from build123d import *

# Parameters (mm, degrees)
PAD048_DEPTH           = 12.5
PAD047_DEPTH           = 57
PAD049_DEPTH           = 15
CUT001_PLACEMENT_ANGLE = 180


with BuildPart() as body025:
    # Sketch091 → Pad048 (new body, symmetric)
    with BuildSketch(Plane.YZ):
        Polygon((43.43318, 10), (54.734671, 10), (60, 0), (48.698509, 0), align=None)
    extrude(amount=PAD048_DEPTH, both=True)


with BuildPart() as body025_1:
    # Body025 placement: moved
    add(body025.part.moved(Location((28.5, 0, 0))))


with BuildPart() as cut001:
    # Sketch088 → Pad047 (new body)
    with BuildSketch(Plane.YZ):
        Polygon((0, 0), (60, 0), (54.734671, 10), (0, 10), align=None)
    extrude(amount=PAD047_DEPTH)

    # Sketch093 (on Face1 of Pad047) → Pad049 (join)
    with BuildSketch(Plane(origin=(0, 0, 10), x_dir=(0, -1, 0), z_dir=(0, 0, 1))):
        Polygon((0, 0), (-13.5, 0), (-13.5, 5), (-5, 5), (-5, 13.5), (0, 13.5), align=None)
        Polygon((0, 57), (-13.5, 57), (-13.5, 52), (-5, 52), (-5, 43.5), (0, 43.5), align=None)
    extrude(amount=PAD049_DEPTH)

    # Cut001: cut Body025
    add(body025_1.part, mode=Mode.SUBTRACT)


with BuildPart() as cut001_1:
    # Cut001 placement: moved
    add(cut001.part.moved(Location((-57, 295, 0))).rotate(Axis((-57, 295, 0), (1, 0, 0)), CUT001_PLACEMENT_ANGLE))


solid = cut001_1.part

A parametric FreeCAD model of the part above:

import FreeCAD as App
import Part
import Sketcher
Q = App.Units.Quantity

doc = App.newDocument("Part")
params = doc.addObject("Spreadsheet::Sheet", "Params")
for row, (alias, value) in enumerate([
    ("pad1_length", "25 mm"),
    ("sketch2_width", "60 mm"),
    ("sketch2_height", "10 mm"),
    ("pad2_length", "57 mm"),
    ("sketch3_width", "5 mm"),
    ("sketch3_width2", "13.5 mm"),
    ("pad3_length", "15 mm"),
], start=1):
    params.set(f"A{row}", alias)
    params.set(f"B{row}", "=" + value)
    params.setAlias(f"B{row}", alias)

body = doc.addObject("PartDesign::Body", "Body")

sketch1 = doc.addObject("Sketcher::SketchObject", "Sketch")
body.addObject(sketch1)
sketch1.AttachmentSupport = (doc.YZ_Plane, [""])
sketch1.MapMode = "FlatFace"
sketch1.addGeometry(Part.LineSegment(App.Vector(55, 10, 0), App.Vector(43, 10, 0)), False)
sketch1.addGeometry(Part.LineSegment(App.Vector(43, 10, 0), App.Vector(49, 0, 0)), False)
sketch1.addGeometry(Part.LineSegment(App.Vector(49, 0, 0), App.Vector(60, 0, 0)), False)
sketch1.addGeometry(Part.LineSegment(App.Vector(60, 0, 0), App.Vector(55, 10, 0)), False)
sketch1.addConstraint(Sketcher.Constraint("Coincident", 0, 2, 1, 1))
sketch1.addConstraint(Sketcher.Constraint("Coincident", 1, 2, 2, 1))
sketch1.addConstraint(Sketcher.Constraint("Coincident", 2, 2, 3, 1))
sketch1.addConstraint(Sketcher.Constraint("Coincident", 3, 2, 0, 1))
sketch1.addConstraint(Sketcher.Constraint("Horizontal", 0))
sketch1.addConstraint(Sketcher.Constraint("Horizontal", 2))
sketch1.addConstraint(Sketcher.Constraint("PointOnObject", 1, 2, -1))
sketch1.addConstraint(Sketcher.Constraint("Parallel", 1, 3))
sketch1.addConstraint(Sketcher.Constraint("DistanceY", -1, 1, 0, 2, Q("10 mm")))
sketch1.addConstraint(Sketcher.Constraint("DistanceX", -1, 1, 2, 2, Q("60 mm")))
sketch1.addConstraint(Sketcher.Constraint("DistanceX", 0, 2, 0, 1, Q("11.301491 mm")))
sketch1.addConstraint(Sketcher.Constraint("Distance", 1, Q("11.301491 mm")))
pad1 = doc.addObject("PartDesign::Pad", "Pad")
body.addObject(pad1)
pad1.Profile = sketch1
pad1.setExpression("Length", "Params.pad1_length")
pad1.Midplane = True
body2 = doc.addObject("PartDesign::Body", "Body001")
doc.recompute()

body.Placement = App.Placement(App.Vector(28.5, 0, 0), App.Rotation(App.Vector(0, 0, 1), 0))
boolean = doc.addObject("PartDesign::Boolean", "Boolean")
body2.addObject(boolean)
boolean.Type = "Fuse"
boolean.addObjects([body])
body3 = doc.addObject("PartDesign::Body", "Body002")

sketch2 = doc.addObject("Sketcher::SketchObject", "Sketch001")
body3.addObject(sketch2)
sketch2.AttachmentSupport = (doc.getObject("YZ_Plane002"), [""])
sketch2.MapMode = "FlatFace"
sketch2.addGeometry(Part.LineSegment(App.Vector(0, 0, 0), App.Vector(60, 0, 0)), False)
sketch2.addGeometry(Part.LineSegment(App.Vector(60, 0, 0), App.Vector(55, 10, 0)), False)
sketch2.addGeometry(Part.LineSegment(App.Vector(55, 10, 0), App.Vector(0, 10, 0)), False)
sketch2.addGeometry(Part.LineSegment(App.Vector(0, 10, 0), App.Vector(0, 0, 0)), False)
sketch2.addConstraint(Sketcher.Constraint("Coincident", 0, 2, 1, 1))
sketch2.addConstraint(Sketcher.Constraint("Coincident", 1, 2, 2, 1))
sketch2.addConstraint(Sketcher.Constraint("Coincident", 2, 2, 3, 1))
sketch2.addConstraint(Sketcher.Constraint("Coincident", 3, 2, 0, 1))
sketch2.addConstraint(Sketcher.Constraint("Horizontal", 0))
sketch2.addConstraint(Sketcher.Constraint("Horizontal", 2))
sketch2.addConstraint(Sketcher.Constraint("Vertical", 3))
sketch2.addConstraint(Sketcher.Constraint("Coincident", 3, 2, -1, 1))
sketch2.addConstraint(Sketcher.Constraint("DistanceX", 0, 1, 0, 2, Q("60 mm")))
sketch2.addConstraint(Sketcher.Constraint("DistanceY", 3, 2, 3, 1, Q("10 mm")))
sketch2.addConstraint(Sketcher.Constraint("DistanceX", 2, 2, 2, 1, Q("54.734671 mm")))
sketch2.setExpression("Constraints[8]", "Params.sketch2_width")
sketch2.setExpression("Constraints[9]", "Params.sketch2_height")
pad2 = doc.addObject("PartDesign::Pad", "Pad001")
body3.addObject(pad2)
pad2.Profile = sketch2
pad2.setExpression("Length", "Params.pad2_length")

sketch3 = doc.addObject("Sketcher::SketchObject", "Sketch002")
body3.addObject(sketch3)
sketch3.AttachmentSupport = (doc.getObject("XY_Plane002"), [""])
sketch3.MapMode = "FlatFace"
sketch3.AttachmentOffset = App.Placement(App.Vector(0, 0, 10), App.Rotation())
sketch3.addGeometry(Part.LineSegment(App.Vector(0, 14, 0), App.Vector(0, 0, 0)), False)
sketch3.addGeometry(Part.LineSegment(App.Vector(0, 0, 0), App.Vector(14, 0, 0)), False)
sketch3.addGeometry(Part.LineSegment(App.Vector(14, 0, 0), App.Vector(14, 5, 0)), False)
sketch3.addGeometry(Part.LineSegment(App.Vector(14, 5, 0), App.Vector(5, 5, 0)), False)
sketch3.addGeometry(Part.LineSegment(App.Vector(5, 5, 0), App.Vector(5, 14, 0)), False)
sketch3.addGeometry(Part.LineSegment(App.Vector(5, 14, 0), App.Vector(0, 14, 0)), False)
sketch3.addGeometry(Part.LineSegment(App.Vector(57, 0, 0), App.Vector(57, 14, 0)), False)
sketch3.addGeometry(Part.LineSegment(App.Vector(57, 14, 0), App.Vector(52, 14, 0)), False)
sketch3.addGeometry(Part.LineSegment(App.Vector(52, 14, 0), App.Vector(52, 5, 0)), False)
sketch3.addGeometry(Part.LineSegment(App.Vector(52, 5, 0), App.Vector(44, 5, 0)), False)
sketch3.addGeometry(Part.LineSegment(App.Vector(44, 5, 0), App.Vector(44, 0, 0)), False)
sketch3.addGeometry(Part.LineSegment(App.Vector(44, 0, 0), App.Vector(57, 0, 0)), False)
sketch3.addConstraint(Sketcher.Constraint("Coincident", 0, 2, 1, 1))
sketch3.addConstraint(Sketcher.Constraint("Coincident", 1, 2, 2, 1))
sketch3.addConstraint(Sketcher.Constraint("Coincident", 2, 2, 3, 1))
sketch3.addConstraint(Sketcher.Constraint("Coincident", 3, 2, 4, 1))
sketch3.addConstraint(Sketcher.Constraint("Coincident", 4, 2, 5, 1))
sketch3.addConstraint(Sketcher.Constraint("Coincident", 5, 2, 0, 1))
sketch3.addConstraint(Sketcher.Constraint("Coincident", 6, 2, 7, 1))
sketch3.addConstraint(Sketcher.Constraint("Coincident", 7, 2, 8, 1))
sketch3.addConstraint(Sketcher.Constraint("Coincident", 8, 2, 9, 1))
sketch3.addConstraint(Sketcher.Constraint("Coincident", 9, 2, 10, 1))
sketch3.addConstraint(Sketcher.Constraint("Coincident", 10, 2, 11, 1))
sketch3.addConstraint(Sketcher.Constraint("Coincident", 11, 2, 6, 1))
sketch3.addConstraint(Sketcher.Constraint("Vertical", 0))
sketch3.addConstraint(Sketcher.Constraint("Horizontal", 1))
sketch3.addConstraint(Sketcher.Constraint("Vertical", 2))
sketch3.addConstraint(Sketcher.Constraint("Horizontal", 3))
sketch3.addConstraint(Sketcher.Constraint("Vertical", 4))
sketch3.addConstraint(Sketcher.Constraint("Horizontal", 5))
sketch3.addConstraint(Sketcher.Constraint("Vertical", 6))
sketch3.addConstraint(Sketcher.Constraint("Horizontal", 7))
sketch3.addConstraint(Sketcher.Constraint("Vertical", 8))
sketch3.addConstraint(Sketcher.Constraint("Horizontal", 9))
sketch3.addConstraint(Sketcher.Constraint("Vertical", 10))
sketch3.addConstraint(Sketcher.Constraint("Horizontal", 11))
sketch3.addConstraint(Sketcher.Constraint("Coincident", 0, 2, -1, 1))
sketch3.addConstraint(Sketcher.Constraint("PointOnObject", 10, 2, -1))
sketch3.addConstraint(Sketcher.Constraint("Horizontal", 5, 2, 6, 2))
sketch3.addConstraint(Sketcher.Constraint("Horizontal", 3, 2, 8, 2))
sketch3.addConstraint(Sketcher.Constraint("Equal", 5, 7))
sketch3.addConstraint(Sketcher.Constraint("Equal", 3, 9))
sketch3.addConstraint(Sketcher.Constraint("Equal", 11, 0))
sketch3.addConstraint(Sketcher.Constraint("Equal", 7, 2))
sketch3.addConstraint(Sketcher.Constraint("DistanceX", 5, 2, 5, 1, Q("5 mm")))
sketch3.addConstraint(Sketcher.Constraint("DistanceX", 1, 1, 1, 2, Q("13.5 mm")))
sketch3.addConstraint(Sketcher.Constraint("DistanceX", -1, 1, 6, 2, Q("57 mm")))
sketch3.setExpression("Constraints[32]", "Params.sketch3_width")
sketch3.setExpression("Constraints[33]", "Params.sketch3_width2")
pad3 = doc.addObject("PartDesign::Pad", "Pad002")
body3.addObject(pad3)
pad3.Profile = sketch3
pad3.setExpression("Length", "Params.pad3_length")
doc.recompute()

boolean2 = doc.addObject("PartDesign::Boolean", "Boolean001")
body3.addObject(boolean2)
boolean2.Type = "Cut"
boolean2.addObjects([body2])
body4 = doc.addObject("PartDesign::Body", "Body003")
doc.recompute()

body3.Placement = App.Placement(App.Vector(-57, 295, 0), App.Rotation(App.Vector(1, 0, 0), 180))
boolean3 = doc.addObject("PartDesign::Boolean", "Boolean002")
body4.addObject(boolean3)
boolean3.Type = "Fuse"
boolean3.addObjects([body3])

doc.recompute()
